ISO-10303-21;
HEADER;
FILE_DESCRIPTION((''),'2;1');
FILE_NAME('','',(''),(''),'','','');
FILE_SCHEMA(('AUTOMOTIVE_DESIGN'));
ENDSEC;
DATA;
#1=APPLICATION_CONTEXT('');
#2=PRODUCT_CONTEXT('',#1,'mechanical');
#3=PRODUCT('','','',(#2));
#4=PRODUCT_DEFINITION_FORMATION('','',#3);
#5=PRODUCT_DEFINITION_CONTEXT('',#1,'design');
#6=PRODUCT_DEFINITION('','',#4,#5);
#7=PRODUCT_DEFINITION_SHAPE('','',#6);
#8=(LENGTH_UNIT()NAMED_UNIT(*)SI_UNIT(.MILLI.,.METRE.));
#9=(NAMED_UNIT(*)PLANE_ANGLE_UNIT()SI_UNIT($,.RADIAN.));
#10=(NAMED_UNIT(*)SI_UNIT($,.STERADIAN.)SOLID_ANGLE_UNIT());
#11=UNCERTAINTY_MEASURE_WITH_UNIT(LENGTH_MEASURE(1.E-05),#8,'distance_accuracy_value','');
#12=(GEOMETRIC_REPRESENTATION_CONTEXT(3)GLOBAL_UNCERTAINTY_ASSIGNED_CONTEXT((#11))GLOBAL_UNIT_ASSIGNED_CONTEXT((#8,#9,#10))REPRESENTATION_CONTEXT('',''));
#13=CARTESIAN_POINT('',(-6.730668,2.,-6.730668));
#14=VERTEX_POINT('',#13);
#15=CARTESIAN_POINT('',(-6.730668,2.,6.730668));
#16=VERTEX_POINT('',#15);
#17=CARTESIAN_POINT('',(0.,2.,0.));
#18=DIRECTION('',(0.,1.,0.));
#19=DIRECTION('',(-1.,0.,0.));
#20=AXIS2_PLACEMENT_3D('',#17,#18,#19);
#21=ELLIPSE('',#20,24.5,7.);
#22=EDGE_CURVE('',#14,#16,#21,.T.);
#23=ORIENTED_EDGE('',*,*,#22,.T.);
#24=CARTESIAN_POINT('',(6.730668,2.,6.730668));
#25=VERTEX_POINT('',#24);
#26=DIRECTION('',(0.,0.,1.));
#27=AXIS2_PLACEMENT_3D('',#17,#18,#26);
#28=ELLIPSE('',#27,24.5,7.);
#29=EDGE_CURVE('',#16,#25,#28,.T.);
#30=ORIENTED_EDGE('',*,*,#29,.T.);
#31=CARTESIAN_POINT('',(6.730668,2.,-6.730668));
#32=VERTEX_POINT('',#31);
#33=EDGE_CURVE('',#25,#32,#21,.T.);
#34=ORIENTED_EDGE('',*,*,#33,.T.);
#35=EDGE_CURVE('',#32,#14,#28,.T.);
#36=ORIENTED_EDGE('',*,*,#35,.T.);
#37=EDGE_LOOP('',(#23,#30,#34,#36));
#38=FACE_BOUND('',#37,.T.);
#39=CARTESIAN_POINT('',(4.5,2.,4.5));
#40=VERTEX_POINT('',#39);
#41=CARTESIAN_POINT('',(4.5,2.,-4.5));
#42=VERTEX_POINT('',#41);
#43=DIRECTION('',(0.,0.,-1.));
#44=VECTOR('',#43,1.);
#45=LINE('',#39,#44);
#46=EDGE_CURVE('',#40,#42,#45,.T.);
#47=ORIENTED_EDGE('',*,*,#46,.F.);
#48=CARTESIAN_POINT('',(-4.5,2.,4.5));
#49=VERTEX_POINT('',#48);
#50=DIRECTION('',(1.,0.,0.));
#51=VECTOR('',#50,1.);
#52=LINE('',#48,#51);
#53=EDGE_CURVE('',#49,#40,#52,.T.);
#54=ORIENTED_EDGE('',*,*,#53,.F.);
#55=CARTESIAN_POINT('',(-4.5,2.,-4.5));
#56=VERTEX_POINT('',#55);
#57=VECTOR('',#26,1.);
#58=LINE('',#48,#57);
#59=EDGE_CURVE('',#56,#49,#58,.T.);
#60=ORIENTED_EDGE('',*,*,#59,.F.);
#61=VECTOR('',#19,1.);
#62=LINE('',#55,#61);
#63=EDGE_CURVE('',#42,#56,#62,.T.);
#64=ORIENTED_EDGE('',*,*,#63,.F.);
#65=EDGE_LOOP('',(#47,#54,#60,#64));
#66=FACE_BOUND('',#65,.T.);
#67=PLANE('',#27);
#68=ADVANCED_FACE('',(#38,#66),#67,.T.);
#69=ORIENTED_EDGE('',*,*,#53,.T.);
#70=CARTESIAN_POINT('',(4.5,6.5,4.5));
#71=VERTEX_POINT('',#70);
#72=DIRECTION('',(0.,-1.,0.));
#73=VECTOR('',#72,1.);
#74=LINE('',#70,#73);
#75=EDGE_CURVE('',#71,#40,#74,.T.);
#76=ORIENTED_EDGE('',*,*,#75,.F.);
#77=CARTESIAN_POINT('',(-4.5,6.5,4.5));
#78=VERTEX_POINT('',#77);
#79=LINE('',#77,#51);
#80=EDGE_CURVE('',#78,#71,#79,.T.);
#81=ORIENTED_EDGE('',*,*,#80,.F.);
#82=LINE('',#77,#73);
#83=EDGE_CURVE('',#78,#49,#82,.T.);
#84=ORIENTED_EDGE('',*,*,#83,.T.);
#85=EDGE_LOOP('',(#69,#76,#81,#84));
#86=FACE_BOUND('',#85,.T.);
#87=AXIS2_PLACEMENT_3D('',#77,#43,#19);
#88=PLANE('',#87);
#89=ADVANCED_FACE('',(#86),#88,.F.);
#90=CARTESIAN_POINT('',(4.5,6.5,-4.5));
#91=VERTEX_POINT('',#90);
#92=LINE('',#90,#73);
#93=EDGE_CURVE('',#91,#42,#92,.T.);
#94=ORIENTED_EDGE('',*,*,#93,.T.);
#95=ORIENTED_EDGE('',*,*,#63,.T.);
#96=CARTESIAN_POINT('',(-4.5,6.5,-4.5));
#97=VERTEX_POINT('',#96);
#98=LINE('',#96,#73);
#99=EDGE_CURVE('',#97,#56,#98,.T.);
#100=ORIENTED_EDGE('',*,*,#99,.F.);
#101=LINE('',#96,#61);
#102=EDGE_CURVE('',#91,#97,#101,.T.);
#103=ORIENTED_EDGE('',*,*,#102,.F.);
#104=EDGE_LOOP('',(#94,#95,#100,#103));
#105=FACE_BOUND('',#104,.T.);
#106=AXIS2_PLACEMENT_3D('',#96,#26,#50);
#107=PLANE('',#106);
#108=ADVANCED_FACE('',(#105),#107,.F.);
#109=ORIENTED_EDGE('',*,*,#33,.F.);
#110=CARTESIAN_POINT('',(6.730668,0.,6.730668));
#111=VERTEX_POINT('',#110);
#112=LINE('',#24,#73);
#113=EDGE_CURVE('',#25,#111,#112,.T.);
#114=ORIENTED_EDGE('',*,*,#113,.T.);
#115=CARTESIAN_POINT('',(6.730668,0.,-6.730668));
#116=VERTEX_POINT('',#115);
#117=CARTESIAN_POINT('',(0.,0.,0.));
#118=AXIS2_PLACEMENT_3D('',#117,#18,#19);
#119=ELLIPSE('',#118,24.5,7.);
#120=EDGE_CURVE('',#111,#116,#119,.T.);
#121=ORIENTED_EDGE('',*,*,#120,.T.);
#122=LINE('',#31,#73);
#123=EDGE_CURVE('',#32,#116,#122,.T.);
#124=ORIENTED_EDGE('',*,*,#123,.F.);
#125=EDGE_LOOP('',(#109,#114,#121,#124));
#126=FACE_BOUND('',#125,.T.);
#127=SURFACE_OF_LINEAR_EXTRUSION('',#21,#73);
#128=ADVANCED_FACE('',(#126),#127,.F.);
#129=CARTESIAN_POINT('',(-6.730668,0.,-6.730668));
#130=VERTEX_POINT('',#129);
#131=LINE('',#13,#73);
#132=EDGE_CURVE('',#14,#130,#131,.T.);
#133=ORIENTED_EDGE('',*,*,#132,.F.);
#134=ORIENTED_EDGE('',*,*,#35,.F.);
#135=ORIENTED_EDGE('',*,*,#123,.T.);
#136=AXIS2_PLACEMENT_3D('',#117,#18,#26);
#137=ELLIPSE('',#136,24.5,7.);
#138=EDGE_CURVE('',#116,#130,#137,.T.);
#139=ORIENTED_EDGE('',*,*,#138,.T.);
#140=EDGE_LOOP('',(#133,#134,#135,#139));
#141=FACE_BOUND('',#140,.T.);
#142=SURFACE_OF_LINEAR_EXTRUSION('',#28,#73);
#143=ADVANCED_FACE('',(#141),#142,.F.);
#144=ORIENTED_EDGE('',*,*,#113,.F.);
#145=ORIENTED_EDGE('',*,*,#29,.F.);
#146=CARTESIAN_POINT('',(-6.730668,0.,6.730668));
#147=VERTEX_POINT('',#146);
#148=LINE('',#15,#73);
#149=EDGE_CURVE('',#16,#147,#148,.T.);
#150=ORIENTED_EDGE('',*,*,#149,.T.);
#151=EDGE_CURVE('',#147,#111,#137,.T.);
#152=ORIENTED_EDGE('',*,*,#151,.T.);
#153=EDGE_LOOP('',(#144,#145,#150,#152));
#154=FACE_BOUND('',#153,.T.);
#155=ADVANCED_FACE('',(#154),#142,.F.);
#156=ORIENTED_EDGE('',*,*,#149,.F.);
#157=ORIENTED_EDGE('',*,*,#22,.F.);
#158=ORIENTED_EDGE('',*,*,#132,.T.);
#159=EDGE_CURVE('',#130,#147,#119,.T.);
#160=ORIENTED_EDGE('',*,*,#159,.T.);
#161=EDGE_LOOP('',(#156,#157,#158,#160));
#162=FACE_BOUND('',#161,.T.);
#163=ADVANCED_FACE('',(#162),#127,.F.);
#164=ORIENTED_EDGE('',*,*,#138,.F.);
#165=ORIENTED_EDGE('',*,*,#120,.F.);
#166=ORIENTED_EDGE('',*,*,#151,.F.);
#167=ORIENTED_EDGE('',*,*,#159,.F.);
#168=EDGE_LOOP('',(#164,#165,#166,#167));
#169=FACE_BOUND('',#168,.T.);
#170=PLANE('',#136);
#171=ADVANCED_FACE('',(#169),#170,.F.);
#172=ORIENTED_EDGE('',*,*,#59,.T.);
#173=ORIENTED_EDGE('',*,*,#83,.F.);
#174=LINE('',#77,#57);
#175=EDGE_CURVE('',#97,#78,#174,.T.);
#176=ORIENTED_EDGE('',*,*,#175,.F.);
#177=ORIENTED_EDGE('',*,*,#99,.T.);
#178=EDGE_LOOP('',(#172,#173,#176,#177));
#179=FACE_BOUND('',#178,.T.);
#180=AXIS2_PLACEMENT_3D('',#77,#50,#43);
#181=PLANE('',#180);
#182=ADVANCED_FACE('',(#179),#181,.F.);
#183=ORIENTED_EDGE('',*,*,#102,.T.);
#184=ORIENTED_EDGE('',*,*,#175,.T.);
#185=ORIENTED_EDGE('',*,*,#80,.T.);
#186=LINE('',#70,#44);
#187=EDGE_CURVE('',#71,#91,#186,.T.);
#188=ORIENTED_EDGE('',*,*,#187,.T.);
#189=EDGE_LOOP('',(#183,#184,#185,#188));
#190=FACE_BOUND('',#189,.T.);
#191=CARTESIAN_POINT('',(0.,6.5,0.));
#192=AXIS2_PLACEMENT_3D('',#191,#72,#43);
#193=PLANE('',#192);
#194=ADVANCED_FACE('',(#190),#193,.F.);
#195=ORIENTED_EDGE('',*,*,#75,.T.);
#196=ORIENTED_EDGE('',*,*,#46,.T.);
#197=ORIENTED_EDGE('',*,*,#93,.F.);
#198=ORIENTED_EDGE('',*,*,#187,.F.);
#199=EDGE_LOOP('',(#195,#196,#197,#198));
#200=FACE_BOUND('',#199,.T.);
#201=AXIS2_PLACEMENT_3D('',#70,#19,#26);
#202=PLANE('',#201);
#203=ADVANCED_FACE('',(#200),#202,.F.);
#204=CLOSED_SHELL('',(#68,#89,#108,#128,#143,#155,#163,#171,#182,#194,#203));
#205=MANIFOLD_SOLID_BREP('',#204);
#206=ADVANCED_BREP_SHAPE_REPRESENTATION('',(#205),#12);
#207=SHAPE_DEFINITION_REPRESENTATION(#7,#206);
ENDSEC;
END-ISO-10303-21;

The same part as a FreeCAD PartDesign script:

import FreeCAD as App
import Part
import Sketcher

V = App.Vector
Q = App.Units.Quantity

doc = App.newDocument("Part")
body = doc.addObject("PartDesign::Body", "Body")

# Sketch on XZ plane
sketch1 = body.newObject("Sketcher::SketchObject", "Sketch")
sketch1.AttachmentSupport = (doc.getObject("XZ_Plane"), [""])
sketch1.MapMode = "FlatFace"
sketch1.addGeometry([
    Part.BSplineCurve([V(-6.730668, -6.730668, 0), V(-89.181346, 0, 0), V(-6.730668, 6.730668, 0)], [3, 3], [4.990688639, 7.575681975], False, 2, [1, 0.274721128, 1], False),
    Part.BSplineCurve([V(-6.730668, 6.730668, 0), V(0, 89.181346, 0), V(6.730668, 6.730668, 0)], [3, 3], [4.990688639, 7.575681975], False, 2, [1, 0.274721128, 1], False),
    Part.BSplineCurve([V(6.730668, 6.730668, 0), V(89.181346, 0, 0), V(6.730668, -6.730668, 0)], [3, 3], [1.849095986, 4.434089321], False, 2, [1, 0.274721128, 1], False),
    Part.BSplineCurve([V(6.730668, -6.730668, 0), V(0, -89.181346, 0), V(-6.730668, -6.730668, 0)], [3, 3], [1.849095986, 4.434089321], False, 2, [1, 0.274721128, 1], False),
], False)
sketch1.addConstraint([
    Sketcher.Constraint("Block", 0),
    Sketcher.Constraint("Block", 1),
    Sketcher.Constraint("Block", 2),
    Sketcher.Constraint("Block", 3),
])
pad1 = body.newObject("PartDesign::Pad", "Pad")
pad1.Profile = sketch1
pad1.Length = 2
pad1.Reversed = True

# Sketch on XZ plane
sketch2 = body.newObject("Sketcher::SketchObject", "Sketch001")
sketch2.AttachmentSupport = (doc.getObject("XZ_Plane"), [""])
sketch2.MapMode = "FlatFace"
sketch2.AttachmentOffset = App.Placement(V(0, 0, -2), App.Rotation())
sketch2.addGeometry([
    Part.LineSegment(V(-4, -4, 0), V(-4, 4, 0)),
    Part.LineSegment(V(-4, 4, 0), V(4, 4, 0)),
    Part.LineSegment(V(4, 4, 0), V(4, -4, 0)),
    Part.LineSegment(V(4, -4, 0), V(-4, -4, 0)),
], False)
sketch2.addConstraint([
    Sketcher.Constraint("Coincident", 0, 2, 1, 1),
    Sketcher.Constraint("Coincident", 1, 2, 2, 1),
    Sketcher.Constraint("Coincident", 2, 2, 3, 1),
    Sketcher.Constraint("Coincident", 3, 2, 0, 1),
    Sketcher.Constraint("Vertical", 0),
    Sketcher.Constraint("Horizontal", 1),
    Sketcher.Constraint("Vertical", 2),
    Sketcher.Constraint("Horizontal", 3),
    Sketcher.Constraint("Symmetric", 0, 2, 2, 2, -1, 1),
    Sketcher.Constraint("Equal", 3, 0),
    Sketcher.Constraint("DistanceX", 1, 1, 1, 2, Q("9 mm")),
])
pad2 = body.newObject("PartDesign::Pad", "Pad001")
pad2.Profile = sketch2
pad2.Length = 4.5
pad2.Reversed = True

doc.recompute()
